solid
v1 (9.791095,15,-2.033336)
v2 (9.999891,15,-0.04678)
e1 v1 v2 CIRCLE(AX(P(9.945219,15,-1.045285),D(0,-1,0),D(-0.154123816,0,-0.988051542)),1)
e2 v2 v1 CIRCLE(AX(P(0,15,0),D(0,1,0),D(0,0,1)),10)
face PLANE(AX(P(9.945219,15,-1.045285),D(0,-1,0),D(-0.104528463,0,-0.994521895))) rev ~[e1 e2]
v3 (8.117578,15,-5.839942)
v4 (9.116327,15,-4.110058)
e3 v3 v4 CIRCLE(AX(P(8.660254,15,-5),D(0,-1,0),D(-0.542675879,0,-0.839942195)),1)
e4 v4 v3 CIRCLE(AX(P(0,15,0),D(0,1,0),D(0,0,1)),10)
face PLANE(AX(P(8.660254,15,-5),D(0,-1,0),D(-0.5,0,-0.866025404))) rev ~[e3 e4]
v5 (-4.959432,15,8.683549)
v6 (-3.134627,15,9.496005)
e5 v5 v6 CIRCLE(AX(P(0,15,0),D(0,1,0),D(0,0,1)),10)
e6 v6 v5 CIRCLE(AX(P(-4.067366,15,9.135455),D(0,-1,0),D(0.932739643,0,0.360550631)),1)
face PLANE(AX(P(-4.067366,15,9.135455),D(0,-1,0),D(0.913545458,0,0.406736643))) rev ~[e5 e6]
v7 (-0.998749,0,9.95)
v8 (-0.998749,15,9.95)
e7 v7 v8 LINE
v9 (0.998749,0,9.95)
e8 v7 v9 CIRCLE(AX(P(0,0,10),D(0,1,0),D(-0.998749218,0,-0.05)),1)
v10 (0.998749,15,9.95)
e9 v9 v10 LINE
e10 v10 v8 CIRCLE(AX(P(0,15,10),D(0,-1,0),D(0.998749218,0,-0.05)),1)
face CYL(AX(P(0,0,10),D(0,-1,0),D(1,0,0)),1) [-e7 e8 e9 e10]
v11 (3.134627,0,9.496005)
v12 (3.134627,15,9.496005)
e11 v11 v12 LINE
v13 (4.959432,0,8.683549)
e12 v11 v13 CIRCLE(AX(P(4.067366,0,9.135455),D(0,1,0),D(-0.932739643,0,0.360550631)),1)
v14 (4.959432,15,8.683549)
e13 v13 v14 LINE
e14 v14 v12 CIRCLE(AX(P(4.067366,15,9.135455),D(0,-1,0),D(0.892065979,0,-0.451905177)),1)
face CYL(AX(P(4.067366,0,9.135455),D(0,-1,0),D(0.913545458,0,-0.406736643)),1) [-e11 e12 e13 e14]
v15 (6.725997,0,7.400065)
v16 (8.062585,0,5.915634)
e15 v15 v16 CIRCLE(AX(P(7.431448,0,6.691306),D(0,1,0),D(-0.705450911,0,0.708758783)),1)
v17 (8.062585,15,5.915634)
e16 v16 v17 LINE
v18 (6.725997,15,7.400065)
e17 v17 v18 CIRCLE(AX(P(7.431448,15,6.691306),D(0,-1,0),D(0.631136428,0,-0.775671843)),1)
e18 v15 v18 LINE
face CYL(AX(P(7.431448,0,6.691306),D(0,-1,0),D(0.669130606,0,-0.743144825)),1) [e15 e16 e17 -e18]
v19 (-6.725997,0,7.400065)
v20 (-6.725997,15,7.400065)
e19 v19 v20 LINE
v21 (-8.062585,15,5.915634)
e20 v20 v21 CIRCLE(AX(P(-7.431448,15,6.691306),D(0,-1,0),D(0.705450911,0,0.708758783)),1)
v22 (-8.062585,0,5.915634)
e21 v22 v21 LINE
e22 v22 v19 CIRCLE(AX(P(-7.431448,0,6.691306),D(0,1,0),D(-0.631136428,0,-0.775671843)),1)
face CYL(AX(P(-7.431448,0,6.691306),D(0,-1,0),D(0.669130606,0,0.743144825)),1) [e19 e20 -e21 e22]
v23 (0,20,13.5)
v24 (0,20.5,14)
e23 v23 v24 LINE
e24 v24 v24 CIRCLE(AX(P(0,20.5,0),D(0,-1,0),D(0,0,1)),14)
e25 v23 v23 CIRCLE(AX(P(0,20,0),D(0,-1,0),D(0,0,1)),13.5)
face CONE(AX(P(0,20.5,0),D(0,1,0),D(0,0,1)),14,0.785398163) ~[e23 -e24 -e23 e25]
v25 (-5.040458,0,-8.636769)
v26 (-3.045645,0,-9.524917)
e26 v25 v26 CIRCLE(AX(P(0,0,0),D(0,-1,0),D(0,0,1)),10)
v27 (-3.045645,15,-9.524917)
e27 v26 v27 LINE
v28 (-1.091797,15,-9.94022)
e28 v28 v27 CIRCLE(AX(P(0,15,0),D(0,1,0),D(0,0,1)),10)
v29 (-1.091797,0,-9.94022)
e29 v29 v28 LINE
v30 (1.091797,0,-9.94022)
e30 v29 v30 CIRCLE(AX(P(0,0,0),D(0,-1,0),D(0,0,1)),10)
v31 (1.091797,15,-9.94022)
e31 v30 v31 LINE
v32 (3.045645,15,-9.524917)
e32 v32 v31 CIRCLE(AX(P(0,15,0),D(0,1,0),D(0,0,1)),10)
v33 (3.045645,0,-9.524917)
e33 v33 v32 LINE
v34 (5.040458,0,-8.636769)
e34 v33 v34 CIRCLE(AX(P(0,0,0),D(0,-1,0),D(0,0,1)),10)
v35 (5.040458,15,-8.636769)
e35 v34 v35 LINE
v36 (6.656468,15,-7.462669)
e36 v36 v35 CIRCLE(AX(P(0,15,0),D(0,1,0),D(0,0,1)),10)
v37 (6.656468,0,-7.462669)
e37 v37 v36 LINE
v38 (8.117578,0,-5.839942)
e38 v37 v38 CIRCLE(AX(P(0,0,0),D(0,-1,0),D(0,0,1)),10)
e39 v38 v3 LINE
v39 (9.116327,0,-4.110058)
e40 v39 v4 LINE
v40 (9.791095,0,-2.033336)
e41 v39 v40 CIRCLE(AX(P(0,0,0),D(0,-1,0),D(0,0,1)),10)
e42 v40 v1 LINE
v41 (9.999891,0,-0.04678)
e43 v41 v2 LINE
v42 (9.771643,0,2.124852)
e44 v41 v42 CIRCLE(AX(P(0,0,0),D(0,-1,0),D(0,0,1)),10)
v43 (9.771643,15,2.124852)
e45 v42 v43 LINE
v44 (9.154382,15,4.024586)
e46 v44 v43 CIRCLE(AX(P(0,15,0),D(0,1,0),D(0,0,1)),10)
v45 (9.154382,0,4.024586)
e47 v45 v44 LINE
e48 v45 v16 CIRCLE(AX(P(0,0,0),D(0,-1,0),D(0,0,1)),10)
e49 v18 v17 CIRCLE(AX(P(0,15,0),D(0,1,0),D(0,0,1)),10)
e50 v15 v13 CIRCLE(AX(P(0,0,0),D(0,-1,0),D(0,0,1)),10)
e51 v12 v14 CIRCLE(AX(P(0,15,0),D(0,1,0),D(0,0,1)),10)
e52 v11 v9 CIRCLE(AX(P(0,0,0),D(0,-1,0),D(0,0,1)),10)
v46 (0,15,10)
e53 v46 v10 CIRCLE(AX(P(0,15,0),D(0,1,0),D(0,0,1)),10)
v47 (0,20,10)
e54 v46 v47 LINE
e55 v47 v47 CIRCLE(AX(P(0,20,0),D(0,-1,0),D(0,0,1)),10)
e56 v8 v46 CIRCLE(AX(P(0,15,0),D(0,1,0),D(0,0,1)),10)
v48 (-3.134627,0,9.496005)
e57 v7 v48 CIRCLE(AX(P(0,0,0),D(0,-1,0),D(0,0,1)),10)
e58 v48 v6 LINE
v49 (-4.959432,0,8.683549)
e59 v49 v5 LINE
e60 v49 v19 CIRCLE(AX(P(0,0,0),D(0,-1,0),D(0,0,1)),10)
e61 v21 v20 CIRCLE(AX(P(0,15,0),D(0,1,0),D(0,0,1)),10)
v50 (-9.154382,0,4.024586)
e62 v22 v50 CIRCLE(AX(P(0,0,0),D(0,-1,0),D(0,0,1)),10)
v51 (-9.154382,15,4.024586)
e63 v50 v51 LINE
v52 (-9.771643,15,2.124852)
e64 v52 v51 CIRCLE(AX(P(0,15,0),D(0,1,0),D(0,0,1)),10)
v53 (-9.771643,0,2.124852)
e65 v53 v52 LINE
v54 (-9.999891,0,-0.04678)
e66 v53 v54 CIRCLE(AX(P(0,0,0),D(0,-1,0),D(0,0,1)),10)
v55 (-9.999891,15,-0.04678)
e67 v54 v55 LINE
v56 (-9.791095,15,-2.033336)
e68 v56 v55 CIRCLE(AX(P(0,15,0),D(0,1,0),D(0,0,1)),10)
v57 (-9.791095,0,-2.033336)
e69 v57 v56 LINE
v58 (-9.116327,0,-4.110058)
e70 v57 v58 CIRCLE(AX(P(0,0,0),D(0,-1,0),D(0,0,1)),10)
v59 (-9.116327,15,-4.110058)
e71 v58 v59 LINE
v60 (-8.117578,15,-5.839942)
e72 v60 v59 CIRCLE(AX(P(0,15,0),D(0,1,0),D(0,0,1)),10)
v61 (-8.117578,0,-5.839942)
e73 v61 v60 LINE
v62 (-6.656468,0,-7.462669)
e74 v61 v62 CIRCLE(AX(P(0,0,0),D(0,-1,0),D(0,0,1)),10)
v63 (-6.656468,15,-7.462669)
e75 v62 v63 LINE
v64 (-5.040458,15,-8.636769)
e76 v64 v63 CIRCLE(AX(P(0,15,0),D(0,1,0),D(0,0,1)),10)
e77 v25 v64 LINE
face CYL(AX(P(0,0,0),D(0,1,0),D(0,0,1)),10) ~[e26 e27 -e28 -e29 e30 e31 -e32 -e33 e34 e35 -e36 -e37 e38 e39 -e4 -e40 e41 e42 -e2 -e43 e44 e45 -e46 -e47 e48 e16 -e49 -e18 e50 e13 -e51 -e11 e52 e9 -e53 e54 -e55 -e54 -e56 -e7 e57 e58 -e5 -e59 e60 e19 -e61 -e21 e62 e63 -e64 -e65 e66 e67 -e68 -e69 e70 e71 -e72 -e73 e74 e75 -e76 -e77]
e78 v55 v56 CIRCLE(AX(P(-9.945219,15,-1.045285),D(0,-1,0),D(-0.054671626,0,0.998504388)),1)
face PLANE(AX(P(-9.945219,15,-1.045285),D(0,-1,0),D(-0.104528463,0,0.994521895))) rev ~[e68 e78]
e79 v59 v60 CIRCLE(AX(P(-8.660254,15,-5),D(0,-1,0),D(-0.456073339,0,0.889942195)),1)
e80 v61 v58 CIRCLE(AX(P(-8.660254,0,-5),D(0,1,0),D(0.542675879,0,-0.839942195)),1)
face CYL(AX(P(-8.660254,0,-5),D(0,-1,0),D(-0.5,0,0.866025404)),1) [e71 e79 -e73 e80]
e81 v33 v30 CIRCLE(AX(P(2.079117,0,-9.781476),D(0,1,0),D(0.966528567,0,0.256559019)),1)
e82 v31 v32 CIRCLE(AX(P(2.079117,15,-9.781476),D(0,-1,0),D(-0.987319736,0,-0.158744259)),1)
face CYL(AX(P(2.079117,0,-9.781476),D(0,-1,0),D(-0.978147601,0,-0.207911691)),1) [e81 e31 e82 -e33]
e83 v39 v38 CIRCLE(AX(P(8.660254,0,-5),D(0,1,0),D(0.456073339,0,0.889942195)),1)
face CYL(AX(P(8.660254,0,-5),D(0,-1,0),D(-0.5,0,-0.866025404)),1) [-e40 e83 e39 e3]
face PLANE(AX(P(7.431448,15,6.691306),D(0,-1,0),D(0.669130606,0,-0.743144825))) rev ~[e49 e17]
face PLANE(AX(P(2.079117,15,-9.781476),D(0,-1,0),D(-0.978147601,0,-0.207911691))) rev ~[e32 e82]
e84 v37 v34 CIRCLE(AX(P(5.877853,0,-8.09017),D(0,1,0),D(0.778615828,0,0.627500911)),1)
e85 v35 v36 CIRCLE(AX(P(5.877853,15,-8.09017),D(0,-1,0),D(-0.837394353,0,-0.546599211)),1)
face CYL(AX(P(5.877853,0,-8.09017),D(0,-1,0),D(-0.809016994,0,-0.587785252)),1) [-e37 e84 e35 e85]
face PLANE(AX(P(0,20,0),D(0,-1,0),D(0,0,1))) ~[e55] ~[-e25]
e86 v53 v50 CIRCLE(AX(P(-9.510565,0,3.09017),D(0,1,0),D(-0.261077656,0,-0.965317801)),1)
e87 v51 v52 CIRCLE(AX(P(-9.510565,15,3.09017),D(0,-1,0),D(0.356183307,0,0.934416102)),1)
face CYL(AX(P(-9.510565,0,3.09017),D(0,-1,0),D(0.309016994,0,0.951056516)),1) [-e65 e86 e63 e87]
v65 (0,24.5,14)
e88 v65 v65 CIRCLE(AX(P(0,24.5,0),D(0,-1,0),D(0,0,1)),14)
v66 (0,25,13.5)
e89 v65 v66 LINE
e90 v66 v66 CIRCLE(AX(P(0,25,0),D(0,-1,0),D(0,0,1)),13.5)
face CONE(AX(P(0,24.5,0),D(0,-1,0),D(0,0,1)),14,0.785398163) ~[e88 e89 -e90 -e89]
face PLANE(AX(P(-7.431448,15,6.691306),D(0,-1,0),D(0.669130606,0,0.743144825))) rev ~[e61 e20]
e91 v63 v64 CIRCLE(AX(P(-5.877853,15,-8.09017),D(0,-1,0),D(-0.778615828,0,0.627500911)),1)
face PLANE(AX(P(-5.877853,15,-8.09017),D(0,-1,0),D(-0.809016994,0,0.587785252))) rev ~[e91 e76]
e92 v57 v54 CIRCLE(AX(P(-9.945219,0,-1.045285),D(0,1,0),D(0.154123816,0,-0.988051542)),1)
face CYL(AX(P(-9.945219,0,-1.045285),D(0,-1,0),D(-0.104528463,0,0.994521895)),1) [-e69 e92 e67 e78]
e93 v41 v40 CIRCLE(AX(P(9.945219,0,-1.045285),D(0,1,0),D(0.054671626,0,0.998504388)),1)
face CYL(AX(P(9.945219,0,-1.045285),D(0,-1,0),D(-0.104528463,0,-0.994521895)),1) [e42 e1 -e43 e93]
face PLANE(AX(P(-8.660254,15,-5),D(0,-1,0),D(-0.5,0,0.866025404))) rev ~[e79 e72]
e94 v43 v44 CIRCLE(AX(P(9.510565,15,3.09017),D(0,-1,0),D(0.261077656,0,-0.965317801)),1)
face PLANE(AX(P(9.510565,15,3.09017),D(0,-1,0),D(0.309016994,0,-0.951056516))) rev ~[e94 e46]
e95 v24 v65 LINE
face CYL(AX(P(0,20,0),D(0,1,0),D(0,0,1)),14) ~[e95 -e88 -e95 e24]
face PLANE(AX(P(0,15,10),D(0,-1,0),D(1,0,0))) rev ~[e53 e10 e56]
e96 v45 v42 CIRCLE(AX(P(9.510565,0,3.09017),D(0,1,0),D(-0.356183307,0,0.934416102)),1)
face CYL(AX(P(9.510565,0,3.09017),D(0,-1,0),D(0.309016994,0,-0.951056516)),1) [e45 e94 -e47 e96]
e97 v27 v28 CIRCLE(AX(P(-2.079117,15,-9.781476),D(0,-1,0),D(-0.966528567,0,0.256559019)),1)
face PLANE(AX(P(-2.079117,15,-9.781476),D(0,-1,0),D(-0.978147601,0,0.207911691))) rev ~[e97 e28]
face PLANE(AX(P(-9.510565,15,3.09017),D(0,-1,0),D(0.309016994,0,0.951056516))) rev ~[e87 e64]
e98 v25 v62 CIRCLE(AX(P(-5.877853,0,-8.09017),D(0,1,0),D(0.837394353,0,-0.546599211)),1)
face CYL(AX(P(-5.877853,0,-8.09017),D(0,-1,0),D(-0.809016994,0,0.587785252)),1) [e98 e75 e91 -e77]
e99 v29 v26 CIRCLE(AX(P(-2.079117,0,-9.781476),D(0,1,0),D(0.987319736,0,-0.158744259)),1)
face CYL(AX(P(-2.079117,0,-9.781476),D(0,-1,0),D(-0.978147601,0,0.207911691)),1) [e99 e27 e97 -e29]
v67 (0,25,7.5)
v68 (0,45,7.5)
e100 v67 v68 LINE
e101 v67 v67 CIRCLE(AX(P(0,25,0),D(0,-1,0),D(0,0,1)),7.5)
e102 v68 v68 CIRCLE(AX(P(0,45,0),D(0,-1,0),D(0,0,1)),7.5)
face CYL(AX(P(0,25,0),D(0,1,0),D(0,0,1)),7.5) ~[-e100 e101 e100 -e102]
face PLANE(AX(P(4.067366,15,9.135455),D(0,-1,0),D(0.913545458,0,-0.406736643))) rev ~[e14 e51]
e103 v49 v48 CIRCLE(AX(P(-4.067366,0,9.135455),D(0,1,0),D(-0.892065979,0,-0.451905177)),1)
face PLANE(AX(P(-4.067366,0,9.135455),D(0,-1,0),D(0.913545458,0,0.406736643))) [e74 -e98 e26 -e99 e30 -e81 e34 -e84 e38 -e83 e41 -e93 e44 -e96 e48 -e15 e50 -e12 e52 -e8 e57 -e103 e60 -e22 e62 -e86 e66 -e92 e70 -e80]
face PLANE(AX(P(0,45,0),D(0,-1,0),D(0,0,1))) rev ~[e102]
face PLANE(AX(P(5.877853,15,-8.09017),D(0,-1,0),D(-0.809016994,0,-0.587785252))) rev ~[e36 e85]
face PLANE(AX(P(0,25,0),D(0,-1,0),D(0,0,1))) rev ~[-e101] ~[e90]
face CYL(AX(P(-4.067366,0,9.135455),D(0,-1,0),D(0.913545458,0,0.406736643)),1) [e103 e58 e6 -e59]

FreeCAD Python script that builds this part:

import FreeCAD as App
import Part
import Sketcher

V = App.Vector


def edges_at(feature, points):
    """Names of the edges that pass closest to the given points."""
    edges = feature.Shape.Edges
    near = lambda p: min(range(len(edges)), key=lambda i: edges[i].distToShape(Part.Vertex(*p))[0])
    return sorted({f"Edge{near(p) + 1}" for p in points})

doc = App.newDocument("Part")
params = doc.addObject("Spreadsheet::Sheet", "Params")
for row, (alias, value) in enumerate([
    ("sketch1_width", "20 mm"),
    ("sketch1_width2", "5 mm"),
    ("sketch1_height", "10 mm"),
    ("sketch1_height2", "4 mm"),
    ("sketch1_height3", "6.5 mm"),
    ("revolution_angle", "360 deg"),
    ("sketch2_diameter", "2 mm"),
    ("pad1_length", "15 mm"),
    ("chamfer_size", "0.5 mm"),
], start=1):
    params.set(f"A{row}", alias)
    params.set(f"B{row}", "=" + value)
    params.setAlias(f"B{row}", alias)

body = doc.addObject("PartDesign::Body", "Body")

# Sketch on YZ plane
sketch1 = doc.addObject("Sketcher::SketchObject", "Sketch")
body.addObject(sketch1)
sketch1.AttachmentSupport = (doc.YZ_Plane, [""])
sketch1.MapMode = "FlatFace"
sketch1.addGeometry([
    Part.LineSegment(V(0, 0, 0), V(0, -10, 0)),  # 0
    Part.LineSegment(V(0, -10, 0), V(20, -10, 0)),  # 1
    Part.LineSegment(V(20, -10, 0), V(20, -14, 0)),  # 2
    Part.LineSegment(V(20, -14, 0), V(25, -14, 0)),  # 3
    Part.LineSegment(V(25, -14, 0), V(25, -7.5, 0)),  # 4
    Part.LineSegment(V(25, -7.5, 0), V(45, -7.5, 0)),  # 5
    Part.LineSegment(V(45, -7.5, 0), V(45, 0, 0)),  # 6
    Part.LineSegment(V(45, 0, 0), V(0, 0, 0)),  # 7
], False)
sketch1.addConstraint([
    Sketcher.Constraint("Coincident", 0, 2, 1, 1),
    Sketcher.Constraint("Coincident", 1, 2, 2, 1),
    Sketcher.Constraint("Coincident", 2, 2, 3, 1),
    Sketcher.Constraint("Coincident", 3, 2, 4, 1),
    Sketcher.Constraint("Coincident", 4, 2, 5, 1),
    Sketcher.Constraint("Coincident", 5, 2, 6, 1),
    Sketcher.Constraint("Coincident", 6, 2, 7, 1),
    Sketcher.Constraint("Coincident", 7, 2, 0, 1),
    Sketcher.Constraint("Vertical", 0),
    Sketcher.Constraint("Horizontal", 1),
    Sketcher.Constraint("Vertical", 2),
    Sketcher.Constraint("Horizontal", 3),
    Sketcher.Constraint("Vertical", 4),
    Sketcher.Constraint("Horizontal", 5),
    Sketcher.Constraint("Vertical", 6),
    Sketcher.Constraint("Horizontal", 7),
    Sketcher.Constraint("Coincident", 7, 2, -1, 1),
    Sketcher.Constraint("Equal", 1, 5),
    Sketcher.Constraint("DistanceX", 1, 1, 1, 2, 20.0),
    Sketcher.Constraint("DistanceX", 3, 1, 3, 2, 5.0),
    Sketcher.Constraint("DistanceY", 0, 2, 0, 1, 10.0),
    Sketcher.Constraint("DistanceY", 2, 2, 2, 1, 4.0),
    Sketcher.Constraint("DistanceY", 4, 1, 4, 2, 6.5),
])
sketch1.setExpression("Constraints[18]", "Params.sketch1_width")
sketch1.setExpression("Constraints[19]", "Params.sketch1_width2")
sketch1.setExpression("Constraints[20]", "Params.sketch1_height")
sketch1.setExpression("Constraints[21]", "Params.sketch1_height2")
sketch1.setExpression("Constraints[22]", "Params.sketch1_height3")
revolution = doc.addObject("PartDesign::Revolution", "Revolution")
body.addObject(revolution)
revolution.Profile = sketch1
revolution.ReferenceAxis = (sketch1, ["H_Axis"])
revolution.setExpression("Angle", "Params.revolution_angle")

# Sketch on XZ plane
sketch2 = doc.addObject("Sketcher::SketchObject", "Sketch001")
body.addObject(sketch2)
sketch2.AttachmentSupport = (doc.XZ_Plane, [""])
sketch2.MapMode = "FlatFace"
sketch2.addGeometry(Part.Circle(V(0, 10, 0), V(0, 0, 1), 1), False)
sketch2.addConstraint([
    Sketcher.Constraint("PointOnObject", 0, 3, -2),
    Sketcher.Constraint("Diameter", 0, 2.0),
    Sketcher.Constraint("DistanceY", -1, 1, 0, 3, 10.0),
])
sketch2.setExpression("Constraints[1]", "Params.sketch2_diameter")
pad1 = doc.addObject("PartDesign::Pad", "Pad")
body.addObject(pad1)
pad1.Profile = sketch2
pad1.setExpression("Length", "Params.pad1_length")
pad1.Reversed = True
doc.recompute()

polarpattern = doc.addObject("PartDesign::PolarPattern", "PolarPattern")
body.addObject(polarpattern)
polarpattern.Originals = [pad1]
polarpattern.Axis = (doc.Y_Axis, [""])
polarpattern.Angle = 360
polarpattern.Occurrences = 15
body.Tip = polarpattern
doc.recompute()

chamfer = doc.addObject("PartDesign::Chamfer", "Chamfer")
body.addObject(chamfer)
chamfer.Base = (polarpattern, edges_at(polarpattern, [(0, 25, -14), (0, 20, -14)]))
chamfer.setExpression("Size", "Params.chamfer_size")

doc.recompute()
